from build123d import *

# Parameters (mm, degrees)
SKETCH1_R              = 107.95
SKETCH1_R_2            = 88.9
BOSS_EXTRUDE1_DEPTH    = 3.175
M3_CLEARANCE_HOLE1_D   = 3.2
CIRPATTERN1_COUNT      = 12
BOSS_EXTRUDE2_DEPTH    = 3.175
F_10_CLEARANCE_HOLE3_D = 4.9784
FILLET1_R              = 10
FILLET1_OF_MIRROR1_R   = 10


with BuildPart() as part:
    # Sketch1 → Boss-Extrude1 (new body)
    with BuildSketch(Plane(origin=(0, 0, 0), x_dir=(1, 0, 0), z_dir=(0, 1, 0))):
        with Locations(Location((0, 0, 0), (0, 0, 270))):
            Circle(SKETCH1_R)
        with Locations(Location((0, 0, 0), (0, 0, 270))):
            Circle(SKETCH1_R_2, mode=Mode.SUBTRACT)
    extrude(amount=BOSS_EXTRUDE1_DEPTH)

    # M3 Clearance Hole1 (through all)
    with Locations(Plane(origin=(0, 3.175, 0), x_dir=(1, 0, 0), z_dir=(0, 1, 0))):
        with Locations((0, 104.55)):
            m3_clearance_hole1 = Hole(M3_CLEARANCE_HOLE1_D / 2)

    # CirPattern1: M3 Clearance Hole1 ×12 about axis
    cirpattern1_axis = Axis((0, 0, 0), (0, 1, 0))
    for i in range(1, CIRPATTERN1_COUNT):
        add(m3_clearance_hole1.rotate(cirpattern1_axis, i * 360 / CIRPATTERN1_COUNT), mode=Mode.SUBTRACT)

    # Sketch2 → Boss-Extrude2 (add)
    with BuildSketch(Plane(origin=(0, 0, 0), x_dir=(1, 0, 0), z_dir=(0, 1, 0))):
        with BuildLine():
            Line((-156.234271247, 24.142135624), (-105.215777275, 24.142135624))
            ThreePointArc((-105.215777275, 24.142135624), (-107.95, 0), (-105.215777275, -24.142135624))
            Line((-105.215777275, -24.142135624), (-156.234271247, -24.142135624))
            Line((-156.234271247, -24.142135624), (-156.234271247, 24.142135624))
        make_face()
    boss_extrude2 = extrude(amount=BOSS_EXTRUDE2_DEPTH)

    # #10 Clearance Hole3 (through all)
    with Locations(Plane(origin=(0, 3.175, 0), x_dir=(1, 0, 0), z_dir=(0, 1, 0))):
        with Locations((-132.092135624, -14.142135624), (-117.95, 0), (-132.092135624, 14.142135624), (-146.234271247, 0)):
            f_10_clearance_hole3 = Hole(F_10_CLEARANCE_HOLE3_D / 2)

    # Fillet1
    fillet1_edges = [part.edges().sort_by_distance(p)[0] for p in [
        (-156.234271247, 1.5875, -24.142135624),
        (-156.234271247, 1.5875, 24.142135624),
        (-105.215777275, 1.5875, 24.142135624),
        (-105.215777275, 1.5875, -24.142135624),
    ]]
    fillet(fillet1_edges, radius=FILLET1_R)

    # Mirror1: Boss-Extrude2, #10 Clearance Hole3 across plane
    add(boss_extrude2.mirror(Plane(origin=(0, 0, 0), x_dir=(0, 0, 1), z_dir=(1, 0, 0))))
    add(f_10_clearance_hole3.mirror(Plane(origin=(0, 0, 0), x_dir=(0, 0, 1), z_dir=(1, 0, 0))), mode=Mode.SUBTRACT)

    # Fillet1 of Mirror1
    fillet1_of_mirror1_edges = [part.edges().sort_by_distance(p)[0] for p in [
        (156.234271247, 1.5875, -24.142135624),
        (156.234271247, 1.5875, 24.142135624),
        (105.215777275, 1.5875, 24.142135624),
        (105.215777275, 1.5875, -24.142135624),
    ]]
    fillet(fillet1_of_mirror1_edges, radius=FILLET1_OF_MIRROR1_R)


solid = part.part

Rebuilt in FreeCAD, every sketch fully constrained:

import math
import FreeCAD as App
import Part
import Sketcher
from FreeCAD import Vector
Q = App.Units.Quantity


def edges_at(feature, points):
    """Names of the edges that pass closest to the given points."""
    edges = feature.Shape.Edges
    near = lambda p: min(range(len(edges)), key=lambda i: edges[i].distToShape(Part.Vertex(*p))[0])
    return sorted({f"Edge{near(p) + 1}" for p in points})

doc = App.newDocument("Part")
params = doc.addObject("Spreadsheet::Sheet", "Params")
for row, (alias, value) in enumerate([
    ("sketch1_diameter", "7 in"),
    ("sketch1_diameter2", "8.5 in"),
    ("pad1_length", "0.125 in"),
    ("hole_diameter", "3.2 mm"),
    ("sketch3_radius", "4.25 in"),
    ("pad2_length", "0.125 in"),
    ("sketch4_diameter", "0.196 in"),
    ("hole2_diameter", "0.196 in"),
    ("fillet_radius", "10 mm"),
    ("fillet2_radius", "10 mm"),
], start=1):
    params.set(f"A{row}", alias)
    params.set(f"B{row}", "=" + value)
    params.setAlias(f"B{row}", alias)

body = doc.addObject("PartDesign::Body", "Body")

# Sketch on XZ plane
sketch1 = body.newObject("Sketcher::SketchObject", "Sketch")
sketch1.AttachmentSupport = (doc.getObject("XZ_Plane"), [""])
sketch1.MapMode = "FlatFace"
sketch1.addGeometry(Part.Circle(Vector(0, 0, 0), Vector(0, 0, 1), 108), False)
sketch1.addGeometry(Part.Circle(Vector(0, 0, 0), Vector(0, 0, 1), 89), False)
sketch1.addConstraint(Sketcher.Constraint("Coincident", 0, 3, -1, 1))
sketch1.addConstraint(Sketcher.Constraint("Coincident", 1, 3, -1, 1))
sketch1.addConstraint(Sketcher.Constraint("Diameter", 1, Q("7 in")))
sketch1.addConstraint(Sketcher.Constraint("Diameter", 0, Q("8.5 in")))
sketch1.setExpression("Constraints[2]", "Params.sketch1_diameter")
sketch1.setExpression("Constraints[3]", "Params.sketch1_diameter2")
pad1 = body.newObject("PartDesign::Pad", "Pad")
pad1.Profile = sketch1
pad1.setExpression("Length", "Params.pad1_length")
pad1.Reversed = True

# Sketch on XZ plane
sketch2 = body.newObject("Sketcher::SketchObject", "Sketch001")
sketch2.AttachmentSupport = (doc.getObject("XZ_Plane"), [""])
sketch2.MapMode = "FlatFace"
sketch2.AttachmentOffset = App.Placement(Vector(0, 0, -0.125 * 25.4), App.Rotation())
sketch2.addGeometry(Part.Circle(Vector(0, -104.5, 0), Vector(0, 0, 1), 1.6), False)
sketch2.addConstraint(Sketcher.Constraint("PointOnObject", 0, 3, -2))
sketch2.addConstraint(Sketcher.Constraint("Diameter", 0, Q("3.2 mm")))
sketch2.addConstraint(Sketcher.Constraint("DistanceY", 0, 3, -1, 1, Q("104.55 mm")))
doc.recompute()
hole = body.newObject("PartDesign::Hole", "Hole")
hole.Profile = sketch2
hole.ThreadType = "None"
hole.setExpression("Diameter", "Params.hole_diameter")
hole.DepthType = "ThroughAll"
hole.Reversed = True
doc.recompute()

polarpattern = body.newObject("PartDesign::PolarPattern", "PolarPattern")
polarpattern.Originals = [hole]
polarpattern.Axis = (doc.getObject("Y_Axis"), [""])
polarpattern.Angle = 360
polarpattern.Occurrences = 12
body.Tip = polarpattern

# Sketch on XZ plane
sketch3 = body.newObject("Sketcher::SketchObject", "Sketch002")
sketch3.AttachmentSupport = (doc.getObject("XZ_Plane"), [""])
sketch3.MapMode = "FlatFace"
sketch3.addGeometry(Part.LineSegment(Vector(-105, -24, 0), Vector(-156, -24, 0)), False)
sketch3.addGeometry(Part.LineSegment(Vector(-156, -24, 0), Vector(-156, 24, 0)), False)
sketch3.addGeometry(Part.LineSegment(Vector(-156, 24, 0), Vector(-105, 24, 0)), False)
sketch3.addGeometry(Part.ArcOfCircle(Part.Circle(Vector(0, 0, 0), Vector(0, 0, 1), 108), math.radians(167), math.radians(193)), False)
sketch3.addConstraint(Sketcher.Constraint("Coincident", 0, 2, 1, 1))
sketch3.addConstraint(Sketcher.Constraint("Coincident", 1, 2, 2, 1))
sketch3.addConstraint(Sketcher.Constraint("Coincident", 2, 2, 3, 1))
sketch3.addConstraint(Sketcher.Constraint("Coincident", 3, 2, 0, 1))
sketch3.addConstraint(Sketcher.Constraint("Horizontal", 0))
sketch3.addConstraint(Sketcher.Constraint("Vertical", 1))
sketch3.addConstraint(Sketcher.Constraint("Horizontal", 2))
sketch3.addConstraint(Sketcher.Constraint("Coincident", 3, 3, -1, 1))
sketch3.addConstraint(Sketcher.Constraint("Vertical", 2, 2, 3, 2))
sketch3.addConstraint(Sketcher.Constraint("Radius", 3, Q("4.25 in")))
sketch3.addConstraint(Sketcher.Constraint("DistanceY", 1, 1, 1, 2, Q("48.284271 mm")))
sketch3.addConstraint(Sketcher.Constraint("DistanceX", 0, 2, 0, 1, Q("51.018494 mm")))
sketch3.setExpression("Constraints[9]", "Params.sketch3_radius")
pad2 = body.newObject("PartDesign::Pad", "Pad001")
pad2.Profile = sketch3
pad2.setExpression("Length", "Params.pad2_length")
pad2.Reversed = True

# Sketch on XZ plane
sketch4 = body.newObject("Sketcher::SketchObject", "Sketch003")
sketch4.AttachmentSupport = (doc.getObject("XZ_Plane"), [""])
sketch4.MapMode = "FlatFace"
sketch4.AttachmentOffset = App.Placement(Vector(0, 0, -0.125 * 25.4), App.Rotation())
sketch4.addGeometry(Part.Circle(Vector(-132.1, 14.1, 0), Vector(0, 0, 1), 2.5), False)
sketch4.addGeometry(Part.Circle(Vector(-118, 0, 0), Vector(0, 0, 1), 2.5), False)
sketch4.addGeometry(Part.Circle(Vector(-132.1, -14.1, 0), Vector(0, 0, 1), 2.5), False)
sketch4.addGeometry(Part.Circle(Vector(-146.2, 0, 0), Vector(0, 0, 1), 2.5), False)
sketch4.addConstraint(Sketcher.Constraint("Equal", 0, 1))
sketch4.addConstraint(Sketcher.Constraint("Equal", 1, 2))
sketch4.addConstraint(Sketcher.Constraint("Equal", 2, 3))
sketch4.addConstraint(Sketcher.Constraint("Symmetric", 0, 3, 2, 3, -1))
sketch4.addConstraint(Sketcher.Constraint("PointOnObject", 1, 3, -1))
sketch4.addConstraint(Sketcher.Constraint("PointOnObject", 3, 3, -1))
sketch4.addConstraint(Sketcher.Constraint("Diameter", 0, Q("0.196 in")))
sketch4.addConstraint(Sketcher.Constraint("DistanceX", 1, 3, -1, 1, Q("117.95 mm")))
sketch4.addConstraint(Sketcher.Constraint("DistanceX", 3, 3, -1, 1, Q("146.234271 mm")))
sketch4.addConstraint(Sketcher.Constraint("DistanceY", 2, 3, 0, 3, Q("28.284271 mm")))
sketch4.addConstraint(Sketcher.Constraint("DistanceX", 0, 3, -1, 1, Q("132.092136 mm")))
sketch4.setExpression("Constraints[6]", "Params.sketch4_diameter")
doc.recompute()
hole2 = body.newObject("PartDesign::Hole", "Hole001")
hole2.Profile = sketch4
hole2.ThreadType = "None"
hole2.setExpression("Diameter", "Params.hole2_diameter")
hole2.DepthType = "ThroughAll"
hole2.Reversed = True
doc.recompute()

fillet = body.newObject("PartDesign::Fillet", "Fillet")
fillet.Base = (hole2, edges_at(hole2, [
    (-156.234, 1.587, -24.142),
    (-156.234, 1.587, 24.142),
    (-105.216, 1.587, 24.142),
    (-105.216, 1.587, -24.142),
]))
fillet.setExpression("Radius", "Params.fillet_radius")
doc.recompute()

mirrored = body.newObject("PartDesign::Mirrored", "Mirrored")
mirrored.Originals = [pad2, hole2]
mirrored.MirrorPlane = (doc.getObject("YZ_Plane"), [""])
body.Tip = mirrored
doc.recompute()

fillet2 = body.newObject("PartDesign::Fillet", "Fillet001")
fillet2.Base = (mirrored, edges_at(mirrored, [
    (156.234, 1.587, -24.142),
    (156.234, 1.587, 24.142),
    (105.216, 1.587, 24.142),
    (105.216, 1.587, -24.142),
]))
fillet2.setExpression("Radius", "Params.fillet2_radius")

doc.recompute()
